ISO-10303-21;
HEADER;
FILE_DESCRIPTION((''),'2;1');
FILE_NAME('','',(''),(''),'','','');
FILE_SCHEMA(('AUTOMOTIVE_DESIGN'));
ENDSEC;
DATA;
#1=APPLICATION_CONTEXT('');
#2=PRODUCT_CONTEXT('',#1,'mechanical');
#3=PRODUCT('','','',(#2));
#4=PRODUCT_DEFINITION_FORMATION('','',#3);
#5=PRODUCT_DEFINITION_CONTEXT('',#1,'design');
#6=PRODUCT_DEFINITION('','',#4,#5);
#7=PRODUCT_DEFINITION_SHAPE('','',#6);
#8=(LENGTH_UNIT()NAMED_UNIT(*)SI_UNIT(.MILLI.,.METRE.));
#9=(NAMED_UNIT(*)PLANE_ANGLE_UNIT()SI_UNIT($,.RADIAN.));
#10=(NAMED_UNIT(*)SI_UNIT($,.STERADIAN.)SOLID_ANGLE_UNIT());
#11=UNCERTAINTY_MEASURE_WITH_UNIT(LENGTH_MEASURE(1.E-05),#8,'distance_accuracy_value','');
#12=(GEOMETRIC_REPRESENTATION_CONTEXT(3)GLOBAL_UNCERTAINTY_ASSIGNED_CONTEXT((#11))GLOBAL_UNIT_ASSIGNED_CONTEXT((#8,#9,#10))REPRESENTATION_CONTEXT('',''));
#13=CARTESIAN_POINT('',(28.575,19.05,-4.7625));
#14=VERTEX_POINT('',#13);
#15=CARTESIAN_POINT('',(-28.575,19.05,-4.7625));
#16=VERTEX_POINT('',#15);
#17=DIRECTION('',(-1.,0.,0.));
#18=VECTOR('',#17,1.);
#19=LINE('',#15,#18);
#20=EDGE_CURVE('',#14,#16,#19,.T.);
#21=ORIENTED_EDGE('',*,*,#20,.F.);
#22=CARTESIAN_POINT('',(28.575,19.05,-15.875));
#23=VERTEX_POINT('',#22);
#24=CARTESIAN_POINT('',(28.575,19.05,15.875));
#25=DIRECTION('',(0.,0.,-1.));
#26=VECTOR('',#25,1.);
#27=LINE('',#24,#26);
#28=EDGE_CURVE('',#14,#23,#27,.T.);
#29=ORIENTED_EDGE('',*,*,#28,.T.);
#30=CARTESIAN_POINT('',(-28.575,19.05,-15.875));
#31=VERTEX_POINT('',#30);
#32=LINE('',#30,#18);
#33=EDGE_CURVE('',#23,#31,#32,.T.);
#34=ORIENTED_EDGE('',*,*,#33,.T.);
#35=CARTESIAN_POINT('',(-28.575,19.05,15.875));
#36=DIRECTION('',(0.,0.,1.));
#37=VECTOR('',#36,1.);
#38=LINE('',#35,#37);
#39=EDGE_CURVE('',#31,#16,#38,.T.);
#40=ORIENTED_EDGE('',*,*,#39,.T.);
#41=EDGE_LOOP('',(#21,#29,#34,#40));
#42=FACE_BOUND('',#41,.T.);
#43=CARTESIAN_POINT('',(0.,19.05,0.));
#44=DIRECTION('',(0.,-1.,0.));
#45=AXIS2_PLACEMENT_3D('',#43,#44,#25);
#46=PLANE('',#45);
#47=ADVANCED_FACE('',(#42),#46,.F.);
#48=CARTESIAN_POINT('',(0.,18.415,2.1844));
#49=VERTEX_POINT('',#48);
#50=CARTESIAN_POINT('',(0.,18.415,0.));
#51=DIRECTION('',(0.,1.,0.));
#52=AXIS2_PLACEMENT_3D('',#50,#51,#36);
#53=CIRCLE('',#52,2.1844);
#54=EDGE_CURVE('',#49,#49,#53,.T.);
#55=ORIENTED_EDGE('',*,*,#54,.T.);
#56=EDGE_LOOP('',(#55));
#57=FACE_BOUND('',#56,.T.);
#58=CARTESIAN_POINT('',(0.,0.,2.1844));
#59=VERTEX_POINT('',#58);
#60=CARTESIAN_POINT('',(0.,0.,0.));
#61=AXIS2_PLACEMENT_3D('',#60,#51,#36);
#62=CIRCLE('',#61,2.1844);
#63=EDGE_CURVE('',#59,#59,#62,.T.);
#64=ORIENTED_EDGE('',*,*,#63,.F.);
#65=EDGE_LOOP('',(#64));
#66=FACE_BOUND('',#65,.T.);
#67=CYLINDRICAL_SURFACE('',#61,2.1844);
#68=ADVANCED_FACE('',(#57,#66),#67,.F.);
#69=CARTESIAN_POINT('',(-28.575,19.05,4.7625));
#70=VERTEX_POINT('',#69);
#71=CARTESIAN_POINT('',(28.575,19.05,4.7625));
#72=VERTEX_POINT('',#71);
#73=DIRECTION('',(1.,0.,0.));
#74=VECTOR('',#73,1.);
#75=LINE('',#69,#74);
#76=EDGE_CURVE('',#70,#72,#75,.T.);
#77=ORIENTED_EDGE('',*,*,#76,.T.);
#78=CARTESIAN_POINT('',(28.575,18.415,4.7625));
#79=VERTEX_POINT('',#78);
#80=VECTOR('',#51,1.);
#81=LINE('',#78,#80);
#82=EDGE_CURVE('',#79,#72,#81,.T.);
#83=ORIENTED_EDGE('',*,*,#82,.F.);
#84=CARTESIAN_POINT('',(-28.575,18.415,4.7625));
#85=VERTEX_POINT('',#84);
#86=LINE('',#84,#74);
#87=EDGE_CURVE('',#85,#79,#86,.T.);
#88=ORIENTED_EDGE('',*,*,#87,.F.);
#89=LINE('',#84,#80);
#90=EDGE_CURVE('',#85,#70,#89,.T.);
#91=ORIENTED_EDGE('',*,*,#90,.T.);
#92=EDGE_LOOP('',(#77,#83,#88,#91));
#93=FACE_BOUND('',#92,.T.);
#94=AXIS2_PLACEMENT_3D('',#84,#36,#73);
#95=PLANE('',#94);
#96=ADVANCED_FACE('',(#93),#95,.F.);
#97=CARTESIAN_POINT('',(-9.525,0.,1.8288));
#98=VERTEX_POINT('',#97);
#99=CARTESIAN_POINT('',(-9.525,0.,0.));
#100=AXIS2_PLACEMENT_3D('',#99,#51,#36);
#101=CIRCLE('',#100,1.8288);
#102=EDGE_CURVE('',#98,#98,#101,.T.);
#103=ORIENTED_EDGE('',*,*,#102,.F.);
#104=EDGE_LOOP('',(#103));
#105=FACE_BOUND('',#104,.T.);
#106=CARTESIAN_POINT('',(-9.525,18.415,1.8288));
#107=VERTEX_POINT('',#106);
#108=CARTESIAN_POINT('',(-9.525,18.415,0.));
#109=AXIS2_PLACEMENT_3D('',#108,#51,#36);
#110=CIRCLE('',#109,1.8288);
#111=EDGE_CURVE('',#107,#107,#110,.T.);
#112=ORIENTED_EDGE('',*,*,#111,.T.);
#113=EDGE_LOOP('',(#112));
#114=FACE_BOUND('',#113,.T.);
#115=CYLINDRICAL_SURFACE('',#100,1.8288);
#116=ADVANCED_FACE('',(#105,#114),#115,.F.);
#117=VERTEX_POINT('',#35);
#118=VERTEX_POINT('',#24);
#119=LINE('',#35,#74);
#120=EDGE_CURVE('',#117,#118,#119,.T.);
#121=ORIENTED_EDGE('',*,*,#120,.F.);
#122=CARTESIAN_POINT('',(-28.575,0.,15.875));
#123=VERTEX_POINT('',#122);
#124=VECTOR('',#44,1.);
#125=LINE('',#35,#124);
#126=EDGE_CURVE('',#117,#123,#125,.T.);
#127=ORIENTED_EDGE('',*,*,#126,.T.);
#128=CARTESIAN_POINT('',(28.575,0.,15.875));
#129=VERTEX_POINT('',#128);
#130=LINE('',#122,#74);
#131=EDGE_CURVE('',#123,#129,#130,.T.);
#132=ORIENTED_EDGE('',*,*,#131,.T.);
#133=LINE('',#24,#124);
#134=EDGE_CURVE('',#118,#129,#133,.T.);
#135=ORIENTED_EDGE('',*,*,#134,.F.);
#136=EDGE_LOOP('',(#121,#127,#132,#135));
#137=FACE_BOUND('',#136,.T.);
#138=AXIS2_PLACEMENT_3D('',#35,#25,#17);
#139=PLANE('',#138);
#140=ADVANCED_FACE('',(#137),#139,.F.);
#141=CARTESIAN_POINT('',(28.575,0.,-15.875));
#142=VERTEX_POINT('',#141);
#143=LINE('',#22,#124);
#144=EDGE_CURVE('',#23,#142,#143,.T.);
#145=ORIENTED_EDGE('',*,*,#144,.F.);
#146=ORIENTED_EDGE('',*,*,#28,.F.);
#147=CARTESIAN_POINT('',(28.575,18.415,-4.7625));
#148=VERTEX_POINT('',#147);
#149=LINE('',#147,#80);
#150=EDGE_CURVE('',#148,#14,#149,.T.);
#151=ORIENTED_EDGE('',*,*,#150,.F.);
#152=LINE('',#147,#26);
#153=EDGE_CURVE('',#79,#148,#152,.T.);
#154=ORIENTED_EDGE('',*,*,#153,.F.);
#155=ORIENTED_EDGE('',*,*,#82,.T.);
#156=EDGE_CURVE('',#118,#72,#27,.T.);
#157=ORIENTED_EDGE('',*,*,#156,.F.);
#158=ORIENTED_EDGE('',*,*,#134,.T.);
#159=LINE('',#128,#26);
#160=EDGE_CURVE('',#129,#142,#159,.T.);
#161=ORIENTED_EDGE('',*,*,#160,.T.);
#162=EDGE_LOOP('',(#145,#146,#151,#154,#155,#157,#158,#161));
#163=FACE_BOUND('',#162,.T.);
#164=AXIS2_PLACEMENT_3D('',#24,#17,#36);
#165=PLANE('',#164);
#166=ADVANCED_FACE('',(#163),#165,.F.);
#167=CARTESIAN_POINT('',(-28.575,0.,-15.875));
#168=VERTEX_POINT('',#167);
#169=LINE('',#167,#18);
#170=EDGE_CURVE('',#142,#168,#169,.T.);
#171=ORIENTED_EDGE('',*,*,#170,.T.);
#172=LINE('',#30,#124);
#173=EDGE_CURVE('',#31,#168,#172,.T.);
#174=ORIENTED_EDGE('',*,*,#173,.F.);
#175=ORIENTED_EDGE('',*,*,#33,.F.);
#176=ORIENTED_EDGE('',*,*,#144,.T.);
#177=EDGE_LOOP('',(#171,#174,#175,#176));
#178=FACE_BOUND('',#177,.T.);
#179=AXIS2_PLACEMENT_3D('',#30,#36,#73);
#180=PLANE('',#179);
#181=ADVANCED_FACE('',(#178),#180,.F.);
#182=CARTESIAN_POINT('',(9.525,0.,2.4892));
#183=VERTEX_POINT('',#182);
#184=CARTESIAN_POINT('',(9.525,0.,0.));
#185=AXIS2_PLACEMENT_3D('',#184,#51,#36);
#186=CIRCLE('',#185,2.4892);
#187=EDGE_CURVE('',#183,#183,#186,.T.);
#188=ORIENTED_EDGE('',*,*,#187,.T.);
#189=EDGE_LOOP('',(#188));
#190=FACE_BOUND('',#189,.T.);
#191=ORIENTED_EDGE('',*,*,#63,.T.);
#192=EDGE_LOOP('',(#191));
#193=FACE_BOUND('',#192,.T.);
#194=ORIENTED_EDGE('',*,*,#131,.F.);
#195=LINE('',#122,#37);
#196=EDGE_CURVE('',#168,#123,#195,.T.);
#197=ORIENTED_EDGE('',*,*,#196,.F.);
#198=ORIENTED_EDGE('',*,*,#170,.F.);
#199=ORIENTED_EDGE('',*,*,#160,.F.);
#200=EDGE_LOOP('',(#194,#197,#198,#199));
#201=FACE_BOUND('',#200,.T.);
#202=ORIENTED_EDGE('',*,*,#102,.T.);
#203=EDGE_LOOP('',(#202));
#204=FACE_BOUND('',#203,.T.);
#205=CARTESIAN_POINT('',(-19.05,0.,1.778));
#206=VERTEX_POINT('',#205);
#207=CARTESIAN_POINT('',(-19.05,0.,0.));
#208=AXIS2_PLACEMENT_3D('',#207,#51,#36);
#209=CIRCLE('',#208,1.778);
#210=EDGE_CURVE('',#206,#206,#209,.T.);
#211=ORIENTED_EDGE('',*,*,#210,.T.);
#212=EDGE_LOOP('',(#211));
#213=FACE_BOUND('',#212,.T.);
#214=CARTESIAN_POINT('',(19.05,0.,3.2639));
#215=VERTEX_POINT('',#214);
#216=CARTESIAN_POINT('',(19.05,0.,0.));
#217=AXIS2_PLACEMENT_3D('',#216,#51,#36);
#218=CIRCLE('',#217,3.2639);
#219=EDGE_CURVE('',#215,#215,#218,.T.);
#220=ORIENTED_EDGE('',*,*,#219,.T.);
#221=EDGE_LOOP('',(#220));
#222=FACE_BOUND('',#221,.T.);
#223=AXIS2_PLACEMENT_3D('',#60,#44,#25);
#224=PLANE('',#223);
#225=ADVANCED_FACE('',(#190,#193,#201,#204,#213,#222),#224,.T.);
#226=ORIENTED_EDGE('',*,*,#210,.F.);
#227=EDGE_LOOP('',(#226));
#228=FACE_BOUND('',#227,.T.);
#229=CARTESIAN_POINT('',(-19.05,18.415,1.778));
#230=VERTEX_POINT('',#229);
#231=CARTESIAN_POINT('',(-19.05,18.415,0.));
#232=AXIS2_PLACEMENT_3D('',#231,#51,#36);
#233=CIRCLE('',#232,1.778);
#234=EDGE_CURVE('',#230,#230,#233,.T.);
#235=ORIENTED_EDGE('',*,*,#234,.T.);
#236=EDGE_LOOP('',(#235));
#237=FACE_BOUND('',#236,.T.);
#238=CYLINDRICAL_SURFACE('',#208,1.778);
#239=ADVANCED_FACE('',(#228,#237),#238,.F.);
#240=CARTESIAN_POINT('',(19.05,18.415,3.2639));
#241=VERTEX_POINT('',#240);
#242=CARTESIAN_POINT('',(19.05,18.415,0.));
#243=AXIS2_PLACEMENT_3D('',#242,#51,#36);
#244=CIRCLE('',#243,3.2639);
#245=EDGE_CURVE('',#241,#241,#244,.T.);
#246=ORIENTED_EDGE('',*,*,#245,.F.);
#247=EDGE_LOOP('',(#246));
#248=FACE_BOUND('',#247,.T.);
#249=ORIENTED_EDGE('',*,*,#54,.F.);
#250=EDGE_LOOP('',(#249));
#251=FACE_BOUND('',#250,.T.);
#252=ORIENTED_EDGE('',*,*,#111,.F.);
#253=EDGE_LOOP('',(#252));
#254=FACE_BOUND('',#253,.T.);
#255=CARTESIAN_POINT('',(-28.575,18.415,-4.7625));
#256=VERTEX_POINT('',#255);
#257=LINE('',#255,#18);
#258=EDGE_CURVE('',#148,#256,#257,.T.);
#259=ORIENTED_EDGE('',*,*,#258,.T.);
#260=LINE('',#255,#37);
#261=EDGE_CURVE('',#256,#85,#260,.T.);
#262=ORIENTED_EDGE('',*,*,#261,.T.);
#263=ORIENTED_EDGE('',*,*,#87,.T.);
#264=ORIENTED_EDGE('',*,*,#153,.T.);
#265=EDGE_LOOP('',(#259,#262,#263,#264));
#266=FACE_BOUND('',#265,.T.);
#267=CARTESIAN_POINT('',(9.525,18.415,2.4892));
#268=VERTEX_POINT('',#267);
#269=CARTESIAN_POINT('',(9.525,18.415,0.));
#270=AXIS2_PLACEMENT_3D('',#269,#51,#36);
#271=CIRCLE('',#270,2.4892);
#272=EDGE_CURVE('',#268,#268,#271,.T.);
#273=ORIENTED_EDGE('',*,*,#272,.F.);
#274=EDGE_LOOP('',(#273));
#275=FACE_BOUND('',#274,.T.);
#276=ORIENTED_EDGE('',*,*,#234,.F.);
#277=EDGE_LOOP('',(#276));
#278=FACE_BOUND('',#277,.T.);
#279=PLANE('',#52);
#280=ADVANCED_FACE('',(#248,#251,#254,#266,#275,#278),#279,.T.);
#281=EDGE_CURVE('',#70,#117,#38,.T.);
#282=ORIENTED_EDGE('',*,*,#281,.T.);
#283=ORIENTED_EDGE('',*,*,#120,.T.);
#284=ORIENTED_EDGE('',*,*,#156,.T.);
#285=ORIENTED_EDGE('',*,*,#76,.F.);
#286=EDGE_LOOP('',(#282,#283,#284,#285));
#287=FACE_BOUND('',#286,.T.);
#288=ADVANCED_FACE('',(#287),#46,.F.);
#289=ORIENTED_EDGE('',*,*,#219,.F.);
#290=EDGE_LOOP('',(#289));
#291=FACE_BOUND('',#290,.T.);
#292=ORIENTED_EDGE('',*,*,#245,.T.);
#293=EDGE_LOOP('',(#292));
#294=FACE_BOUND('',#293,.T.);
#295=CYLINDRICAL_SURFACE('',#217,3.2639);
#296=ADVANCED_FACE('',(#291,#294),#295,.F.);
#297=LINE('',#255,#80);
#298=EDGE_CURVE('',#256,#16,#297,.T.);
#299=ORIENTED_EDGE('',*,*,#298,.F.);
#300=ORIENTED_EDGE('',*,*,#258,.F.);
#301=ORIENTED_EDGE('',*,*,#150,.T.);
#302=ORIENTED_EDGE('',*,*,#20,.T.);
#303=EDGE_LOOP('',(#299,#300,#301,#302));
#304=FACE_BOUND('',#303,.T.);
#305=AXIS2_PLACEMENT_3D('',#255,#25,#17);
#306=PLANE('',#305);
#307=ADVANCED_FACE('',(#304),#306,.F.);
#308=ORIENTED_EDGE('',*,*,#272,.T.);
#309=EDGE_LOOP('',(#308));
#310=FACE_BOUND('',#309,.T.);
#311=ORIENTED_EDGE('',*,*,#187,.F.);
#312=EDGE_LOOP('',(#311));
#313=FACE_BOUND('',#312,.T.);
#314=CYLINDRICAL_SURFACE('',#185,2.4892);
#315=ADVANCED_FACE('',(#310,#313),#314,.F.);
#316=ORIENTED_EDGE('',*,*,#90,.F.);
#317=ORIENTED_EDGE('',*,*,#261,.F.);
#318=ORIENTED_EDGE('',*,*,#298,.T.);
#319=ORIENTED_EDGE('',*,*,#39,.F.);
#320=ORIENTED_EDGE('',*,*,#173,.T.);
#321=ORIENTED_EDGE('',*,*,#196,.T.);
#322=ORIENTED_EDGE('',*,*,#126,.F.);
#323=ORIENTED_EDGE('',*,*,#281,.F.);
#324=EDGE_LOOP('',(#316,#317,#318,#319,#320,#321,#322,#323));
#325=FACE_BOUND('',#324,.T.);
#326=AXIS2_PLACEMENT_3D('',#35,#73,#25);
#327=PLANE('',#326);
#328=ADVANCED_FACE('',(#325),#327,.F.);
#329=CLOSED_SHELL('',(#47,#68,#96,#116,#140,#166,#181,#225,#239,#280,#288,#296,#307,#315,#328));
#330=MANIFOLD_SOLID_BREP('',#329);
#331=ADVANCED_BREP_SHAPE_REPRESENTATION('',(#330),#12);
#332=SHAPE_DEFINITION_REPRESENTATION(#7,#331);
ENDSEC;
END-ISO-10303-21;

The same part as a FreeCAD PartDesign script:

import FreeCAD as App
import Part
import Sketcher
Q = App.Units.Quantity

doc = App.newDocument("Part")
body = doc.addObject("PartDesign::Body", "Body")

sketch1 = body.newObject("Sketcher::SketchObject", "Sketch")
sketch1.AttachmentSupport = (doc.getObject("XZ_Plane"), [""])
sketch1.MapMode = "FlatFace"
sketch1.addGeometry([
    Part.LineSegment(App.Vector(-29, -16, 0), App.Vector(-29, 16, 0)),
    Part.LineSegment(App.Vector(-29, 16, 0), App.Vector(29, 16, 0)),
    Part.LineSegment(App.Vector(29, 16, 0), App.Vector(29, -16, 0)),
    Part.LineSegment(App.Vector(29, -16, 0), App.Vector(-29, -16, 0)),
], False)
sketch1.addConstraint([
    Sketcher.Constraint("Coincident", 0, 2, 1, 1),
    Sketcher.Constraint("Coincident", 1, 2, 2, 1),
    Sketcher.Constraint("Coincident", 2, 2, 3, 1),
    Sketcher.Constraint("Coincident", 3, 2, 0, 1),
    Sketcher.Constraint("Vertical", 0),
    Sketcher.Constraint("Horizontal", 1),
    Sketcher.Constraint("Vertical", 2),
    Sketcher.Constraint("Horizontal", 3),
    Sketcher.Constraint("Symmetric", 0, 2, 2, 2, -1, 1),
    Sketcher.Constraint("DistanceX", 1, 1, 1, 2, Q("2.25 in")),
    Sketcher.Constraint("DistanceY", 0, 1, 0, 2, Q("1.25 in")),
])
pad1 = body.newObject("PartDesign::Pad", "Pad")
pad1.Profile = sketch1
pad1.Length = Q("0.75 in")
pad1.Reversed = True

sketch2 = body.newObject("Sketcher::SketchObject", "Sketch001")
sketch2.AttachmentSupport = (doc.getObject("XZ_Plane"), [""])
sketch2.MapMode = "FlatFace"
sketch2.AttachmentOffset = App.Placement(App.Vector(0, 0, -0.75 * 25.4), App.Rotation())
sketch2.addGeometry([
    Part.LineSegment(App.Vector(-29, -5, 0), App.Vector(-29, 5, 0)),
    Part.LineSegment(App.Vector(-29, 5, 0), App.Vector(29, 5, 0)),
    Part.LineSegment(App.Vector(29, 5, 0), App.Vector(29, -5, 0)),
    Part.LineSegment(App.Vector(29, -5, 0), App.Vector(-29, -5, 0)),
], False)
sketch2.addConstraint([
    Sketcher.Constraint("Coincident", 0, 2, 1, 1),
    Sketcher.Constraint("Coincident", 1, 2, 2, 1),
    Sketcher.Constraint("Coincident", 2, 2, 3, 1),
    Sketcher.Constraint("Coincident", 3, 2, 0, 1),
    Sketcher.Constraint("Vertical", 0),
    Sketcher.Constraint("Horizontal", 1),
    Sketcher.Constraint("Vertical", 2),
    Sketcher.Constraint("Horizontal", 3),
    Sketcher.Constraint("Symmetric", 0, 2, 2, 2, -1, 1),
    Sketcher.Constraint("DistanceX", 1, 1, 1, 2, Q("2.25 in")),
    Sketcher.Constraint("DistanceY", 0, 1, 0, 2, Q("0.375 in")),
])
pocket1 = body.newObject("PartDesign::Pocket", "Pocket")
pocket1.Profile = sketch2
pocket1.Length = Q("0.025 in")
pocket1.Reversed = True

sketch3 = body.newObject("Sketcher::SketchObject", "Sketch002")
sketch3.AttachmentSupport = (doc.getObject("XZ_Plane"), [""])
sketch3.MapMode = "FlatFace"
sketch3.AttachmentOffset = App.Placement(App.Vector(0, 0, -0.725 * 25.4), App.Rotation())
sketch3.addGeometry([
    Part.Circle(App.Vector(-19.1, 0, 0), App.Vector(0, 0, 1), 1.8),
    Part.Circle(App.Vector(-9.5, 0, 0), App.Vector(0, 0, 1), 1.8),
    Part.Circle(App.Vector(0, 0, 0), App.Vector(0, 0, 1), 2.2),
    Part.Circle(App.Vector(9.5, 0, 0), App.Vector(0, 0, 1), 2.5),
    Part.Circle(App.Vector(19.1, 0, 0), App.Vector(0, 0, 1), 3.3),
], False)
sketch3.addConstraint([
    Sketcher.Constraint("Coincident", 2, 3, -1, 1),
    Sketcher.Constraint("Symmetric", 1, 3, 3, 3, -1, 1),
    Sketcher.Constraint("Symmetric", 0, 3, 4, 3, -1, 1),
    Sketcher.Constraint("PointOnObject", 0, 3, -1),
    Sketcher.Constraint("PointOnObject", 1, 3, -1),
    Sketcher.Constraint("Diameter", 0, Q("0.14 in")),
    Sketcher.Constraint("Diameter", 1, Q("0.144 in")),
    Sketcher.Constraint("Diameter", 2, Q("0.172 in")),
    Sketcher.Constraint("Diameter", 3, Q("0.196 in")),
    Sketcher.Constraint("Diameter", 4, Q("0.257 in")),
    Sketcher.Constraint("DistanceX", 0, 3, 4, 3, Q("1.5 in")),
    Sketcher.Constraint("DistanceX", 1, 3, 3, 3, Q("0.75 in")),
])
pocket2 = body.newObject("PartDesign::Pocket", "Pocket001")
pocket2.Profile = sketch3
pocket2.Type = "ThroughAll"
pocket2.Reversed = True

doc.recompute()
